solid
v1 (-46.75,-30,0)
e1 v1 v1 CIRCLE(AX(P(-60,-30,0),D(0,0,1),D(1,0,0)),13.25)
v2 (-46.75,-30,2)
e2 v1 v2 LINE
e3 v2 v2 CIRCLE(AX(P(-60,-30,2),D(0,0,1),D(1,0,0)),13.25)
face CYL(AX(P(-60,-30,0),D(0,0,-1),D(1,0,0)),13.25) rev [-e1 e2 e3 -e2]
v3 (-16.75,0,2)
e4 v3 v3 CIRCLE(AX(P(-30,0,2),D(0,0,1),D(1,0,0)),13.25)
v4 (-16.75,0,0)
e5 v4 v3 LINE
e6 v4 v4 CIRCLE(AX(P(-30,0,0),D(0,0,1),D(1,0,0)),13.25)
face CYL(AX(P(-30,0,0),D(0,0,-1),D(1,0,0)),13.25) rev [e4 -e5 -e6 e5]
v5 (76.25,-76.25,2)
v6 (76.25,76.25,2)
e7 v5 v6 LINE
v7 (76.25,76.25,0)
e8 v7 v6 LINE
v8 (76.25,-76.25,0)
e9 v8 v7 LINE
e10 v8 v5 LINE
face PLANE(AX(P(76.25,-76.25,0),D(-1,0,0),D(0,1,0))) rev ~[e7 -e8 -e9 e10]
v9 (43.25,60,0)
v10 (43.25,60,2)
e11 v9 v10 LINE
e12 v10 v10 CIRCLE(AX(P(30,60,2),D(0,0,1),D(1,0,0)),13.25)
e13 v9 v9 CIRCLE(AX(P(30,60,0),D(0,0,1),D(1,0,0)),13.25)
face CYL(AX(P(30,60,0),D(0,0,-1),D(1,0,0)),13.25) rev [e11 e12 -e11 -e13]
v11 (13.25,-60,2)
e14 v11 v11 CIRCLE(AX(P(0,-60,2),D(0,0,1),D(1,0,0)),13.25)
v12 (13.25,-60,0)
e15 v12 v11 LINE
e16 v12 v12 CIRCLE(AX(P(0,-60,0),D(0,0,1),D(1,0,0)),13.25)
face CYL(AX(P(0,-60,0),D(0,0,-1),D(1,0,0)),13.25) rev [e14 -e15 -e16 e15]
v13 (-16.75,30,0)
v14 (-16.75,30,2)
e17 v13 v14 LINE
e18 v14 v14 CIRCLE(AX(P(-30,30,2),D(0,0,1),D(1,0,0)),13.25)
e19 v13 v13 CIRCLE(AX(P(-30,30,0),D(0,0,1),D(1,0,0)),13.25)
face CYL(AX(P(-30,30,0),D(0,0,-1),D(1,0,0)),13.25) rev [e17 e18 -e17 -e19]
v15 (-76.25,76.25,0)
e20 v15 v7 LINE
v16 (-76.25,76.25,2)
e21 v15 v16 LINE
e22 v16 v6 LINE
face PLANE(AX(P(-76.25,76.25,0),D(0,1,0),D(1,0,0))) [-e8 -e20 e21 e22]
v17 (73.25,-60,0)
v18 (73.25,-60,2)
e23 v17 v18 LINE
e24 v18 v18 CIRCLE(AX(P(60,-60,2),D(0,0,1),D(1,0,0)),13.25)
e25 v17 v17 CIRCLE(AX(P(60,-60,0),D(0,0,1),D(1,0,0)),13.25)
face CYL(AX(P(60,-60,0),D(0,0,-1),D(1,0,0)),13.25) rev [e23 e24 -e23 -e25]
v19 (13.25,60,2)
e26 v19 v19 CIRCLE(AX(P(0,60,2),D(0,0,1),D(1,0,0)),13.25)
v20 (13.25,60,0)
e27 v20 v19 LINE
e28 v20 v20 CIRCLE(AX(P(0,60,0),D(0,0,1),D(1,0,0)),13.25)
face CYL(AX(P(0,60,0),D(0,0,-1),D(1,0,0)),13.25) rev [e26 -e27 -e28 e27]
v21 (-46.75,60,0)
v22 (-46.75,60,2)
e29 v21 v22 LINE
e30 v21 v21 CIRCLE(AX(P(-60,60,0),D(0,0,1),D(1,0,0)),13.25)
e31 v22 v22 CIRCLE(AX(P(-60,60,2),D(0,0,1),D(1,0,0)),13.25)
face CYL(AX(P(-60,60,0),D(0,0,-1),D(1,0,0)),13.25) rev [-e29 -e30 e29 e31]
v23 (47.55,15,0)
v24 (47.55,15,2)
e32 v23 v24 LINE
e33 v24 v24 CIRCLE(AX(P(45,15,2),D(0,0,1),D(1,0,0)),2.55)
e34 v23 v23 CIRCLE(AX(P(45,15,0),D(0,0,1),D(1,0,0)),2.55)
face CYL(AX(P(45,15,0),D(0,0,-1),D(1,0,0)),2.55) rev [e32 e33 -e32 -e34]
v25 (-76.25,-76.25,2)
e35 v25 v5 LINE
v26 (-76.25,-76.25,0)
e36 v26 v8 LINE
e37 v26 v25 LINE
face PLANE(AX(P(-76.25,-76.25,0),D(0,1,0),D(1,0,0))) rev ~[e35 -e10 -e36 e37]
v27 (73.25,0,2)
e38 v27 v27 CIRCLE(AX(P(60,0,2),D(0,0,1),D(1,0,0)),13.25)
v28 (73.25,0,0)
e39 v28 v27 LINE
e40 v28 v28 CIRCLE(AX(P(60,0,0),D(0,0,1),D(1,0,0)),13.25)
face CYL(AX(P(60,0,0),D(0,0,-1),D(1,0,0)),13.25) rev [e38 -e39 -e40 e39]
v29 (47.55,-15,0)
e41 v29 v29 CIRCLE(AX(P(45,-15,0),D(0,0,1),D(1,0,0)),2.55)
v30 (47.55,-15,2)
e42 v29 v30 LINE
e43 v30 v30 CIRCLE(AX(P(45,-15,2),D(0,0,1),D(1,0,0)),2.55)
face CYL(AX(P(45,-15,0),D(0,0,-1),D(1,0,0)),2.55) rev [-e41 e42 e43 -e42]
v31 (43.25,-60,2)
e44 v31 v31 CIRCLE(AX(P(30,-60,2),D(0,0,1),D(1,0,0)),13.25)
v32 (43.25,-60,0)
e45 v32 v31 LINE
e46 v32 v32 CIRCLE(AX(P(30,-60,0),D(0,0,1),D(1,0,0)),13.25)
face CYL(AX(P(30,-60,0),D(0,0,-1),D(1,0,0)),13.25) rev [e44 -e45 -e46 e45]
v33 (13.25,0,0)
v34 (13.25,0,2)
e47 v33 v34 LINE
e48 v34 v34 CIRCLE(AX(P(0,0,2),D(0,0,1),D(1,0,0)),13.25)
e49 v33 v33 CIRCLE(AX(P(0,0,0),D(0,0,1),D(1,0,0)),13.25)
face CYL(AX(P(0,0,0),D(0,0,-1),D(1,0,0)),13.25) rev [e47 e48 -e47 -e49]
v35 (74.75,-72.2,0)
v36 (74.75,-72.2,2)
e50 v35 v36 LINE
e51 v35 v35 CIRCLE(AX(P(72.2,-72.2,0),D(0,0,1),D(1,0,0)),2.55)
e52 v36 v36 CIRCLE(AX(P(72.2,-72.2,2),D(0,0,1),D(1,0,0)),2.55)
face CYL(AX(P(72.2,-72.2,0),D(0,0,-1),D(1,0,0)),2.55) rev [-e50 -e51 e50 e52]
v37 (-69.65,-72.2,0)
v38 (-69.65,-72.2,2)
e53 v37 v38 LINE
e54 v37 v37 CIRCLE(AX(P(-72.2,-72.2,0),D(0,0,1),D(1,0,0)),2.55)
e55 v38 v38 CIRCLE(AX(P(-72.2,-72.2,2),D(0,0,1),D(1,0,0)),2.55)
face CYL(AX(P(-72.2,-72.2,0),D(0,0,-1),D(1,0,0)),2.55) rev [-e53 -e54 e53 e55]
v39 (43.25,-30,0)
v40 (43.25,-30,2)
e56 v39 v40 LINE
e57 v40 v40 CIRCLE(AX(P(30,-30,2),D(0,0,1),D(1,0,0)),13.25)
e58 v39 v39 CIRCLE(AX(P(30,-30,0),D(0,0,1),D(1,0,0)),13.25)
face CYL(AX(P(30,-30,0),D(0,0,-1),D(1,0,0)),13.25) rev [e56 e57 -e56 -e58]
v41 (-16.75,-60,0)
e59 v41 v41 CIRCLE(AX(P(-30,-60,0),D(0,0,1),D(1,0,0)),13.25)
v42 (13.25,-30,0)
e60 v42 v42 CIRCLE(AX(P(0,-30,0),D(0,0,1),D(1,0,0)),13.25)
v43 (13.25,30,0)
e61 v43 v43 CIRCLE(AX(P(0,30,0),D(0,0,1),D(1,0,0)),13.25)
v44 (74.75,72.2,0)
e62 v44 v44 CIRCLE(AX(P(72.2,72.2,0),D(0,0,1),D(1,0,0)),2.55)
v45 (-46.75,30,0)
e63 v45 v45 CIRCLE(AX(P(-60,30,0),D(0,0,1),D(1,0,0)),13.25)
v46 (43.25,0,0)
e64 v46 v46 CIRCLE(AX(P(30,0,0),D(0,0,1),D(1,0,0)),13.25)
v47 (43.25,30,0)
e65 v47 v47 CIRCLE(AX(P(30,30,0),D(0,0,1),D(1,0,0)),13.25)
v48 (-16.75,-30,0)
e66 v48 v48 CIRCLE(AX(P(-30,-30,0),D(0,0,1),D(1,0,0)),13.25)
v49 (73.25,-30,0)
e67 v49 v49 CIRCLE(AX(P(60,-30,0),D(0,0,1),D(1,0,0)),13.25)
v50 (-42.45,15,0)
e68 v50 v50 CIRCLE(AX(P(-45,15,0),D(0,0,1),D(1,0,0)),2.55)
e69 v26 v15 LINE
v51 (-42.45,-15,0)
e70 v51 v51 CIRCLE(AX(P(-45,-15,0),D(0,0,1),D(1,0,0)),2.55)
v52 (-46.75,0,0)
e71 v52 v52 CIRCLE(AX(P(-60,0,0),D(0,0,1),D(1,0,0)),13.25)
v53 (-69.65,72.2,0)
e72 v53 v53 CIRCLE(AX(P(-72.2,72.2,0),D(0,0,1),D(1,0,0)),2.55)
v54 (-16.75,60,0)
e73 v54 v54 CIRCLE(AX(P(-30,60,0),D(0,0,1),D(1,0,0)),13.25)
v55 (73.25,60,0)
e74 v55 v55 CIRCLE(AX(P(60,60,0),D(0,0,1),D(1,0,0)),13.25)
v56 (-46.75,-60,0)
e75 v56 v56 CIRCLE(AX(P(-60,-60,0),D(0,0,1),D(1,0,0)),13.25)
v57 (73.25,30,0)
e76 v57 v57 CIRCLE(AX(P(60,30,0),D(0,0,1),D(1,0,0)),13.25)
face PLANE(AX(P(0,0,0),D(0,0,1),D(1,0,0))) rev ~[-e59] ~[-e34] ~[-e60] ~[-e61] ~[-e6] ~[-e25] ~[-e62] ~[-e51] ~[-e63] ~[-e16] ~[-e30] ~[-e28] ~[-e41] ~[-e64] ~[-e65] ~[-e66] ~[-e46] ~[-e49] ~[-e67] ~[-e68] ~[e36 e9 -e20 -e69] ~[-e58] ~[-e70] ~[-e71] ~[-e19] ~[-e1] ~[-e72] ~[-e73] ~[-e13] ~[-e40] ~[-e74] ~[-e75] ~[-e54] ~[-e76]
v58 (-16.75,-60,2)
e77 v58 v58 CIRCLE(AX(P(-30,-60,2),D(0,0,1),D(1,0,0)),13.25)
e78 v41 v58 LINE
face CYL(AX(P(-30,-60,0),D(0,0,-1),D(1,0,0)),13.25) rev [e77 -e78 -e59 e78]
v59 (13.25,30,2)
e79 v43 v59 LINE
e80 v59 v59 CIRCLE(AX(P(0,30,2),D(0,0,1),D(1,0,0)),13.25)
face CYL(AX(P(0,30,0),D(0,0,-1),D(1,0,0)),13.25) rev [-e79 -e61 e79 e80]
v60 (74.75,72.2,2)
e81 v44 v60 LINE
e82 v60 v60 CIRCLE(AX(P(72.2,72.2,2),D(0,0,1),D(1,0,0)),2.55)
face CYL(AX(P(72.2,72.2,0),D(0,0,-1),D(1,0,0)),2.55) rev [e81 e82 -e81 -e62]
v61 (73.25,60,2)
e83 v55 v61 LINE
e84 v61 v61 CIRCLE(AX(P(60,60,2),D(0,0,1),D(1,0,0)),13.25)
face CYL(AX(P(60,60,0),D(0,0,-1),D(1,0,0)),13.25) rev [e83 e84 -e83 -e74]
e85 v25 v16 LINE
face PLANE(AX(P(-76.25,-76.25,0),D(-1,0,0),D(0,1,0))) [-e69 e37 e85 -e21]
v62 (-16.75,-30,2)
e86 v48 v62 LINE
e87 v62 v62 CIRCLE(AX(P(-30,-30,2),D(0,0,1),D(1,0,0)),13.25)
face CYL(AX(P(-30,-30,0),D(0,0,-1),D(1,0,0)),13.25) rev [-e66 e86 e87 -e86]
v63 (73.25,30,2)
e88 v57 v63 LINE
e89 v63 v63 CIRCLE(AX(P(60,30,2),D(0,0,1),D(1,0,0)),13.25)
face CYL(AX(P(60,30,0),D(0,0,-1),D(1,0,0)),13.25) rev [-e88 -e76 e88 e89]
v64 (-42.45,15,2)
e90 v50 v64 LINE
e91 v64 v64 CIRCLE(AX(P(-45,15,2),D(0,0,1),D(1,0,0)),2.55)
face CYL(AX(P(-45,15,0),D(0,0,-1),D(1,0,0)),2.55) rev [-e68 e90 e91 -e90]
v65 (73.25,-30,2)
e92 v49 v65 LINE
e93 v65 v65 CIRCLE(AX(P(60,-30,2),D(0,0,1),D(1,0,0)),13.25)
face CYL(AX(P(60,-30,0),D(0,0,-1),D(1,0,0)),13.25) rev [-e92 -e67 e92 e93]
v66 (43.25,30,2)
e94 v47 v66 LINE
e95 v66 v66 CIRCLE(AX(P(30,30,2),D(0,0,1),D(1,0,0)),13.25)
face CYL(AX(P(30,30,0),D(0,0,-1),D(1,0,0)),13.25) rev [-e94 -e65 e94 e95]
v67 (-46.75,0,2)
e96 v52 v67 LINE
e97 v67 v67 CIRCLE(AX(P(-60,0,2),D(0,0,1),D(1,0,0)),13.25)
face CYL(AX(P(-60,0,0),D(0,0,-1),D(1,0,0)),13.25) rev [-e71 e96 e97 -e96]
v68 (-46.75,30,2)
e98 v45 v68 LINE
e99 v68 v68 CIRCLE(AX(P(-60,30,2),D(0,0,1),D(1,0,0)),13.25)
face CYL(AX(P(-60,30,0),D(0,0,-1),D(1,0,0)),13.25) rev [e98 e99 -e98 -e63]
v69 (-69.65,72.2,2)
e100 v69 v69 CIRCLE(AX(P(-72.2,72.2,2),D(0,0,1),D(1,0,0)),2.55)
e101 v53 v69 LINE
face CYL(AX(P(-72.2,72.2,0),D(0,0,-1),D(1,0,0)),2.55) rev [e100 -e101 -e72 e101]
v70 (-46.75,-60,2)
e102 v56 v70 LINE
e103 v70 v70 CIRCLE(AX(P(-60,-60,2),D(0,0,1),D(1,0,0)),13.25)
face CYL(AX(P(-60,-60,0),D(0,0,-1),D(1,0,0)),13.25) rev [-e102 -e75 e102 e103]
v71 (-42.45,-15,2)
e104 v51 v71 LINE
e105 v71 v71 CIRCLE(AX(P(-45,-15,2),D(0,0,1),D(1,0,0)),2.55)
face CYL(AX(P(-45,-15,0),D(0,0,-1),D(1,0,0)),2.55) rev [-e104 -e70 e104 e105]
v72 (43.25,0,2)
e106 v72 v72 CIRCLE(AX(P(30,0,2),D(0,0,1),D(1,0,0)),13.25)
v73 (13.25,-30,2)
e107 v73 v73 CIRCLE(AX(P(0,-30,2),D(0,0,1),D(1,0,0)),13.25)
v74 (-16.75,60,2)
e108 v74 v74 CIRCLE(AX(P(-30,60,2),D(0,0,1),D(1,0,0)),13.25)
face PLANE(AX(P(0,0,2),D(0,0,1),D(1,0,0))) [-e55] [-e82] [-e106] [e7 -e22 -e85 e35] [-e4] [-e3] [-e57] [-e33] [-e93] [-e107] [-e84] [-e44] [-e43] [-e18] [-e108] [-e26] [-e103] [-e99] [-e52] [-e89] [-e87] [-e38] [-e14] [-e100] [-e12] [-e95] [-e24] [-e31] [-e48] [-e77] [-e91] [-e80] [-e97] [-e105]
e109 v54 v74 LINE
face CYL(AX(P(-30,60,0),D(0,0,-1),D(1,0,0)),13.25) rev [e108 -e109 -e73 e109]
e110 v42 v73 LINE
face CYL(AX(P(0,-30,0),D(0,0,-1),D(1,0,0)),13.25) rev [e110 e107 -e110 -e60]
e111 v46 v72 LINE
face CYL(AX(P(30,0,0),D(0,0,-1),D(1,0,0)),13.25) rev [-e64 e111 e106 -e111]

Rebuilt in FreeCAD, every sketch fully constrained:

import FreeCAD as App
import Part
import Sketcher
from FreeCAD import Vector

doc = App.newDocument("Part")
params = doc.addObject("Spreadsheet::Sheet", "Params")
for row, (alias, value) in enumerate([
    ("sketch1_diameter", "5.1 mm"),
    ("sketch1_diameter2", "26.5 mm"),
    ("sketch1_width", "152.5 mm"),
    ("pad1_length", "2 mm"),
], start=1):
    params.set(f"A{row}", alias)
    params.set(f"B{row}", "=" + value)
    params.setAlias(f"B{row}", alias)

body = doc.addObject("PartDesign::Body", "Body")

# Sketch on XY plane
sketch1 = body.newObject("Sketcher::SketchObject", "Sketch")
sketch1.AttachmentSupport = (doc.getObject("XY_Plane"), [""])
sketch1.MapMode = "FlatFace"
sketch1.addGeometry([
    Part.LineSegment(Vector(-76.2, 76.2, 0), Vector(-76.2, -76.2, 0)),  # 0
    Part.LineSegment(Vector(-76.2, -76.2, 0), Vector(76.2, -76.2, 0)),  # 1
    Part.LineSegment(Vector(76.2, -76.2, 0), Vector(76.2, 76.2, 0)),  # 2
    Part.LineSegment(Vector(76.2, 76.2, 0), Vector(-76.2, 76.2, 0)),  # 3
    Part.Circle(Vector(-72.2, -72.2, 0), Vector(0, 0, 1), 2.5),  # 4
    Part.Circle(Vector(-60, -60, 0), Vector(0, 0, 1), 13.2),  # 5
    Part.Circle(Vector(-30, -60, 0), Vector(0, 0, 1), 13.2),  # 6
    Part.Circle(Vector(-60, -30, 0), Vector(0, 0, 1), 13.2),  # 7
    Part.Circle(Vector(-45, -15, 0), Vector(0, 0, 1), 2.5),  # 8
    Part.Circle(Vector(-30, -30, 0), Vector(0, 0, 1), 13.2),  # 9
    Part.Circle(Vector(0, -60, 0), Vector(0, 0, 1), 13.2),  # 10
    Part.Circle(Vector(30, -60, 0), Vector(0, 0, 1), 13.2),  # 11
    Part.Circle(Vector(72.2, -72.2, 0), Vector(0, 0, 1), 2.5),  # 12
    Part.Circle(Vector(60, -60, 0), Vector(0, 0, 1), 13.2),  # 13
    Part.Circle(Vector(0, -30, 0), Vector(0, 0, 1), 13.2),  # 14
    Part.Circle(Vector(30, -30, 0), Vector(0, 0, 1), 13.2),  # 15
    Part.Circle(Vector(60, -30, 0), Vector(0, 0, 1), 13.2),  # 16
    Part.Circle(Vector(45, -15, 0), Vector(0, 0, 1), 2.5),  # 17
    Part.Circle(Vector(-60, 0, 0), Vector(0, 0, 1), 13.2),  # 18
    Part.Circle(Vector(-45, 15, 0), Vector(0, 0, 1), 2.5),  # 19
    Part.Circle(Vector(-60, 30, 0), Vector(0, 0, 1), 13.2),  # 20
    Part.Circle(Vector(-30, 0, 0), Vector(0, 0, 1), 13.2),  # 21
    Part.Circle(Vector(-30, 30, 0), Vector(0, 0, 1), 13.2),  # 22
    Part.Circle(Vector(-60, 60, 0), Vector(0, 0, 1), 13.2),  # 23
    Part.Circle(Vector(-72.2, 72.2, 0), Vector(0, 0, 1), 2.5),  # 24
    Part.Circle(Vector(-30, 60, 0), Vector(0, 0, 1), 13.2),  # 25
    Part.Circle(Vector(0, 0, 0), Vector(0, 0, 1), 13.2),  # 26
    Part.Circle(Vector(30, 0, 0), Vector(0, 0, 1), 13.2),  # 27
    Part.Circle(Vector(0, 30, 0), Vector(0, 0, 1), 13.2),  # 28
    Part.Circle(Vector(30, 30, 0), Vector(0, 0, 1), 13.2),  # 29
    Part.Circle(Vector(45, 15, 0), Vector(0, 0, 1), 2.5),  # 30
    Part.Circle(Vector(60, 0, 0), Vector(0, 0, 1), 13.2),  # 31
    Part.Circle(Vector(60, 30, 0), Vector(0, 0, 1), 13.2),  # 32
    Part.Circle(Vector(0, 60, 0), Vector(0, 0, 1), 13.2),  # 33
    Part.Circle(Vector(30, 60, 0), Vector(0, 0, 1), 13.2),  # 34
    Part.Circle(Vector(60, 60, 0), Vector(0, 0, 1), 13.2),  # 35
    Part.Circle(Vector(72.2, 72.2, 0), Vector(0, 0, 1), 2.5),  # 36
], False)
sketch1.addConstraint([
    Sketcher.Constraint("Coincident", 0, 2, 1, 1),
    Sketcher.Constraint("Coincident", 1, 2, 2, 1),
    Sketcher.Constraint("Coincident", 2, 2, 3, 1),
    Sketcher.Constraint("Coincident", 3, 2, 0, 1),
    Sketcher.Constraint("Vertical", 0),
    Sketcher.Constraint("Horizontal", 1),
    Sketcher.Constraint("Vertical", 2),
    Sketcher.Constraint("Horizontal", 3),
    Sketcher.Constraint("Coincident", 26, 3, -1, 1),
    Sketcher.Constraint("Equal", 5, 6),
    Sketcher.Constraint("Equal", 6, 7),
    Sketcher.Constraint("Equal", 4, 8),
    Sketcher.Constraint("Equal", 7, 9),
    Sketcher.Constraint("Equal", 9, 10),
    Sketcher.Constraint("Equal", 10, 11),
    Sketcher.Constraint("Equal", 8, 12),
    Sketcher.Constraint("Equal", 11, 13),
    Sketcher.Constraint("Equal", 13, 14),
    Sketcher.Constraint("Equal", 14, 15),
    Sketcher.Constraint("Equal", 15, 16),
    Sketcher.Constraint("Equal", 12, 17),
    Sketcher.Constraint("Equal", 16, 18),
    Sketcher.Constraint("Equal", 17, 19),
    Sketcher.Constraint("Equal", 18, 20),
    Sketcher.Constraint("Equal", 20, 21),
    Sketcher.Constraint("Equal", 21, 22),
    Sketcher.Constraint("Equal", 22, 23),
    Sketcher.Constraint("Equal", 19, 24),
    Sketcher.Constraint("Equal", 23, 25),
    Sketcher.Constraint("Equal", 25, 26),
    Sketcher.Constraint("Equal", 26, 27),
    Sketcher.Constraint("Equal", 27, 28),
    Sketcher.Constraint("Equal", 28, 29),
    Sketcher.Constraint("Equal", 24, 30),
    Sketcher.Constraint("Equal", 29, 31),
    Sketcher.Constraint("Equal", 31, 32),
    Sketcher.Constraint("Equal", 32, 33),
    Sketcher.Constraint("Equal", 33, 34),
    Sketcher.Constraint("Equal", 34, 35),
    Sketcher.Constraint("Equal", 30, 36),
    Sketcher.Constraint("Symmetric", 17, 3, 19, 3, -1, 1),
    Sketcher.Constraint("Symmetric", 16, 3, 20, 3, -1, 1),
    Sketcher.Constraint("Symmetric", 15, 3, 22, 3, -1, 1),
    Sketcher.Constraint("Symmetric", 13, 3, 23, 3, -1, 1),
    Sketcher.Constraint("Symmetric", 12, 3, 24, 3, -1, 1),
    Sketcher.Constraint("Symmetric", 11, 3, 25, 3, -1, 1),
    Sketcher.Constraint("Symmetric", 21, 3, 27, 3, -1, 1),
    Sketcher.Constraint("Symmetric", 14, 3, 28, 3, -1, 1),
    Sketcher.Constraint("Symmetric", 9, 3, 29, 3, -1, 1),
    Sketcher.Constraint("Symmetric", 8, 3, 30, 3, -1, 1),
    Sketcher.Constraint("Symmetric", 18, 3, 31, 3, -1, 1),
    Sketcher.Constraint("Symmetric", 7, 3, 32, 3, -1, 1),
    Sketcher.Constraint("Symmetric", 10, 3, 33, 3, -1, 1),
    Sketcher.Constraint("Symmetric", 6, 3, 34, 3, -1, 1),
    Sketcher.Constraint("Symmetric", 5, 3, 35, 3, -1, 1),
    Sketcher.Constraint("Symmetric", 4, 3, 36, 3, -1, 1),
    Sketcher.Constraint("Symmetric", 0, 2, 2, 2, -1, 1),
    Sketcher.Constraint("Symmetric", 6, 3, 11, 3, -2),
    Sketcher.Constraint("Symmetric", 4, 3, 12, 3, -2),
    Sketcher.Constraint("Symmetric", 5, 3, 13, 3, -2),
    Sketcher.Constraint("Symmetric", 9, 3, 15, 3, -2),
    Sketcher.Constraint("Symmetric", 7, 3, 16, 3, -2),
    Sketcher.Constraint("Symmetric", 8, 3, 17, 3, -2),
    Sketcher.Constraint("PointOnObject", 10, 3, -2),
    Sketcher.Constraint("PointOnObject", 14, 3, -2),
    Sketcher.Constraint("PointOnObject", 18, 3, -1),
    Sketcher.Constraint("PointOnObject", 21, 3, -1),
    Sketcher.Constraint("Horizontal", 5, 3, 6, 3),
    Sketcher.Constraint("Horizontal", 7, 3, 9, 3),
    Sketcher.Constraint("Horizontal", 6, 3, 10, 3),
    Sketcher.Constraint("Horizontal", 9, 3, 14, 3),
    Sketcher.Constraint("Vertical", 5, 3, 7, 3),
    Sketcher.Constraint("Vertical", 6, 3, 9, 3),
    Sketcher.Constraint("Vertical", 7, 3, 18, 3),
    Sketcher.Constraint("Vertical", 9, 3, 21, 3),
    Sketcher.Constraint("Equal", 3, 0),
    Sketcher.Constraint("Diameter", 4, 5.1),
    Sketcher.Constraint("Diameter", 5, 26.5),
    Sketcher.Constraint("DistanceX", 1, 1, 1, 2, 152.5),
    Sketcher.Constraint("DistanceX", 5, 3, -1, 1, 60.0),
    Sketcher.Constraint("DistanceY", 5, 3, -1, 1, 60.0),
    Sketcher.Constraint("DistanceX", 6, 3, -1, 1, 30.0),
    Sketcher.Constraint("DistanceY", 7, 3, -1, 1, 30.0),
    Sketcher.Constraint("DistanceX", 8, 3, -1, 1, 45.0),
    Sketcher.Constraint("DistanceY", 8, 3, -1, 1, 15.0),
    Sketcher.Constraint("DistanceX", 4, 3, -1, 1, 72.2),
    Sketcher.Constraint("DistanceY", 4, 3, -1, 1, 72.2),
])
sketch1.setExpression("Constraints[76]", "Params.sketch1_diameter")
sketch1.setExpression("Constraints[77]", "Params.sketch1_diameter2")
sketch1.setExpression("Constraints[78]", "Params.sketch1_width")
pad1 = body.newObject("PartDesign::Pad", "Pad")
pad1.Profile = sketch1
pad1.setExpression("Length", "Params.pad1_length")

doc.recompute()
